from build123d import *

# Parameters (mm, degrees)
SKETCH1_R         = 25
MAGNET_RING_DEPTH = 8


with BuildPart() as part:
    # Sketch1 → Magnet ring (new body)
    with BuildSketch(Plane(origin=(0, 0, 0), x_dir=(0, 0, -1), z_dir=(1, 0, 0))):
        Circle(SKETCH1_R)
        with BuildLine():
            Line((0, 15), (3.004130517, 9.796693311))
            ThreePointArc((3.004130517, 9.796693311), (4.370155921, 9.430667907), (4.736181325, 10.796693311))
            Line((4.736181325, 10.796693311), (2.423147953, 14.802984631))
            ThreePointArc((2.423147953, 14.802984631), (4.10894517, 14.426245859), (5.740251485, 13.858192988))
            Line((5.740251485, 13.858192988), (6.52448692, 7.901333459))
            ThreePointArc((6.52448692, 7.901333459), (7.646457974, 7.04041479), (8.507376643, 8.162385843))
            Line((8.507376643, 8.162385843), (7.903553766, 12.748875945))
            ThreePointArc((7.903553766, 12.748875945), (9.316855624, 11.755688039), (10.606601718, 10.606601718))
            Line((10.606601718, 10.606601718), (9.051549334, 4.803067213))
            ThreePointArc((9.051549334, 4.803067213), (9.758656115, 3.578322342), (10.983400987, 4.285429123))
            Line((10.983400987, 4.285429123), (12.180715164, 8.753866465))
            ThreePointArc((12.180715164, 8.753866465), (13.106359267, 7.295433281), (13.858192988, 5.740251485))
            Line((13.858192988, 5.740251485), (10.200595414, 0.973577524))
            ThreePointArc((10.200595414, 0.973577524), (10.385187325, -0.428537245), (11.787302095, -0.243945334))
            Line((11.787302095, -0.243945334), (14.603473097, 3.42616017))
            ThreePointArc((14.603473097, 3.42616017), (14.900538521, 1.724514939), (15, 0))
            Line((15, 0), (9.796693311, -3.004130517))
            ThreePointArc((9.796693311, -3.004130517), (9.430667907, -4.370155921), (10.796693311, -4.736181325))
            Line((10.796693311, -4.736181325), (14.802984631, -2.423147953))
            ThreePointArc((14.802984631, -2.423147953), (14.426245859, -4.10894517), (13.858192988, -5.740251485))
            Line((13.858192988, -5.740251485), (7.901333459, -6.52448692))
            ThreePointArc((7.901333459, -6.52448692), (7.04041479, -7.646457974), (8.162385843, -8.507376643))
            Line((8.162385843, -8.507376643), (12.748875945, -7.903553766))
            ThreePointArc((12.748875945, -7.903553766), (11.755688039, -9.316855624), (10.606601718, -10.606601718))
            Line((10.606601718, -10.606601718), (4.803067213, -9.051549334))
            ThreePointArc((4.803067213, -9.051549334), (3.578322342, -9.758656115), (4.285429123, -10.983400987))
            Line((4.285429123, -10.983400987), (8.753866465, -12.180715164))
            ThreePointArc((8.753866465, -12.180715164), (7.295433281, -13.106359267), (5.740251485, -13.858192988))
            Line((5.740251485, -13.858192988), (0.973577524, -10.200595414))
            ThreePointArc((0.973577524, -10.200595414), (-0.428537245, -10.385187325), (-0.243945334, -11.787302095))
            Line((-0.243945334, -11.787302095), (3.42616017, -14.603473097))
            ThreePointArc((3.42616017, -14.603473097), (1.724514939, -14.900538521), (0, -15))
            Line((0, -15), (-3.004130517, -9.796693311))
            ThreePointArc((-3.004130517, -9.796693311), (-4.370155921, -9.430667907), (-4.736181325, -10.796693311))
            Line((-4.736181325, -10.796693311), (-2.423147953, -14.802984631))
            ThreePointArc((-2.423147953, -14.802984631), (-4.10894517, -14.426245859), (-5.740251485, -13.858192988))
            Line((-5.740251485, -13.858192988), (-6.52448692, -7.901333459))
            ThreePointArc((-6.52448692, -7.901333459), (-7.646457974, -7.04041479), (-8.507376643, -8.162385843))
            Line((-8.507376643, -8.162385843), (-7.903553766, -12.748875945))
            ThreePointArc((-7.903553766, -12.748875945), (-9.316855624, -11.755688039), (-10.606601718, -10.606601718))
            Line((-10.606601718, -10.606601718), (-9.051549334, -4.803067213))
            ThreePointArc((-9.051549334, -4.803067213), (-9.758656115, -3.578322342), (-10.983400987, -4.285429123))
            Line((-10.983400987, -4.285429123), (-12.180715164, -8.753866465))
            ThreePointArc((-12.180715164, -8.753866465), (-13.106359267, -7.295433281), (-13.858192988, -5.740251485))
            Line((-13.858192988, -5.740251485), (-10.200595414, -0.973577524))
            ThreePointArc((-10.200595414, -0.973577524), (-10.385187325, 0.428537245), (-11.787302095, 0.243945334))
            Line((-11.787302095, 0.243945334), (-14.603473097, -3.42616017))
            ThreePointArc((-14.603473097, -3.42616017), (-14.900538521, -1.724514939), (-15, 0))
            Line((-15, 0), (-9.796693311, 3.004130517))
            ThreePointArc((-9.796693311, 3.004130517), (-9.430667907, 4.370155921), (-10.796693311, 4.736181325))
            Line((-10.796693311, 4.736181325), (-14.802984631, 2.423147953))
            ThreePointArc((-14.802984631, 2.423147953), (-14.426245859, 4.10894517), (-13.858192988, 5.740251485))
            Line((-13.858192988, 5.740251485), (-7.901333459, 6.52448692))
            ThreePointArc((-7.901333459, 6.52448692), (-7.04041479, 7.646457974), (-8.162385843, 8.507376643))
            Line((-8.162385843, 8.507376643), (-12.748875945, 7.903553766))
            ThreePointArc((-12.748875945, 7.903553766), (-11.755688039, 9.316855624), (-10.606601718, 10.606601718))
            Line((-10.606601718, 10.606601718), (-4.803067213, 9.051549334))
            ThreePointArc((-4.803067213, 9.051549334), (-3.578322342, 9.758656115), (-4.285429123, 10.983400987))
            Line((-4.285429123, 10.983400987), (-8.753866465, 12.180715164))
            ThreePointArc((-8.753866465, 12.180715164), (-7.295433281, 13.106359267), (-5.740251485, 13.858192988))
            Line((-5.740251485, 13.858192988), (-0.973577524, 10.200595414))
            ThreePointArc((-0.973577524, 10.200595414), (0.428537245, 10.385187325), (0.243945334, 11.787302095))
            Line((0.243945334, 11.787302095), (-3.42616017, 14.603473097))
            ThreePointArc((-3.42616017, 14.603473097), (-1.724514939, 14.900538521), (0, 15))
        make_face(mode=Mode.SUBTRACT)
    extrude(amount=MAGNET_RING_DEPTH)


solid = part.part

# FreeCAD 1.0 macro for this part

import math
import FreeCAD as App
import Part
import Sketcher
Q = App.Units.Quantity

doc = App.newDocument("Part")
body = doc.addObject("PartDesign::Body", "Body")

# Sketch on YZ plane
sketch1 = body.newObject("Sketcher::SketchObject", "Sketch")
sketch1.AttachmentSupport = (doc.getObject("YZ_Plane"), [""])
sketch1.MapMode = "FlatFace"
sketch1.addGeometry([
    Part.Circle(App.Vector(0, 0, 0), App.Vector(0, 0, 1), 25),  # 0
    Part.ArcOfCircle(Part.Circle(App.Vector(0, 0, 0), App.Vector(0, 0, 1), 15), math.radians(0), math.radians(13.20352)),  # 1
    Part.LineSegment(App.Vector(15, 0, 0), App.Vector(9.796693, -3.004131, 0)),  # 2
    Part.ArcOfCircle(Part.Circle(App.Vector(10.296693, -3.870156, 0), App.Vector(0, 0, 1), 1), math.radians(120), math.radians(300)),  # 3
    Part.LineSegment(App.Vector(10.796693, -4.736181, 0), App.Vector(14.802985, -2.423148, 0)),  # 4
    Part.ArcOfCircle(Part.Circle(App.Vector(0, 0, 0), App.Vector(0, 0, 1), 15), math.radians(-22.5), math.radians(-9.29648)),  # 5
    Part.LineSegment(App.Vector(13.858193, -5.740251, 0), App.Vector(7.901333, -6.524487, 0)),  # 6
    Part.ArcOfCircle(Part.Circle(App.Vector(8.03186, -7.515932, 0), App.Vector(0, 0, 1), 1), math.radians(97.5), math.radians(277.5)),  # 7
    Part.LineSegment(App.Vector(8.162386, -8.507377, 0), App.Vector(12.748876, -7.903554, 0)),  # 8
    Part.ArcOfCircle(Part.Circle(App.Vector(0, 0, 0), App.Vector(0, 0, 1), 15), math.radians(-45), math.radians(-31.79648)),  # 9
    Part.LineSegment(App.Vector(10.606602, -10.606602, 0), App.Vector(4.803067, -9.051549, 0)),  # 10
    Part.ArcOfCircle(Part.Circle(App.Vector(4.544248, -10.017475, 0), App.Vector(0, 0, 1), 1), math.radians(75), math.radians(255)),  # 11
    Part.LineSegment(App.Vector(4.285429, -10.983401, 0), App.Vector(8.753866, -12.180715, 0)),  # 12
    Part.ArcOfCircle(Part.Circle(App.Vector(0, 0, 0), App.Vector(0, 0, 1), 15), math.radians(-67.5), math.radians(-54.29648)),  # 13
    Part.LineSegment(App.Vector(5.740251, -13.858193, 0), App.Vector(0.973578, -10.200595, 0)),  # 14
    Part.ArcOfCircle(Part.Circle(App.Vector(0.364816, -10.993949, 0), App.Vector(0, 0, 1), 1), math.radians(52.5), math.radians(232.5)),  # 15
    Part.LineSegment(App.Vector(-0.243945, -11.787302, 0), App.Vector(3.42616, -14.603473, 0)),  # 16
    Part.ArcOfCircle(Part.Circle(App.Vector(0, 0, 0), App.Vector(0, 0, 1), 15), math.radians(-90), math.radians(-76.79648)),  # 17
    Part.LineSegment(App.Vector(0, -15, 0), App.Vector(-3.004131, -9.796693, 0)),  # 18
    Part.ArcOfCircle(Part.Circle(App.Vector(-3.870156, -10.296693, 0), App.Vector(0, 0, 1), 1), math.radians(30), math.radians(210)),  # 19
    Part.LineSegment(App.Vector(-4.736181, -10.796693, 0), App.Vector(-2.423148, -14.802985, 0)),  # 20
    Part.ArcOfCircle(Part.Circle(App.Vector(0, 0, 0), App.Vector(0, 0, 1), 15), math.radians(-112.5), math.radians(-99.29648)),  # 21
    Part.LineSegment(App.Vector(-5.740251, -13.858193, 0), App.Vector(-6.524487, -7.901333, 0)),  # 22
    Part.ArcOfCircle(Part.Circle(App.Vector(-7.515932, -8.03186, 0), App.Vector(0, 0, 1), 1), math.radians(7.5), math.radians(187.5)),  # 23
    Part.LineSegment(App.Vector(-8.507377, -8.162386, 0), App.Vector(-7.903554, -12.748876, 0)),  # 24
    Part.ArcOfCircle(Part.Circle(App.Vector(0, 0, 0), App.Vector(0, 0, 1), 15), math.radians(-135), math.radians(-121.79648)),  # 25
    Part.LineSegment(App.Vector(-10.606602, -10.606602, 0), App.Vector(-9.051549, -4.803067, 0)),  # 26
    Part.ArcOfCircle(Part.Circle(App.Vector(-10.017475, -4.544248, 0), App.Vector(0, 0, 1), 1), math.radians(-15), math.radians(165)),  # 27
    Part.LineSegment(App.Vector(-10.983401, -4.285429, 0), App.Vector(-12.180715, -8.753866, 0)),  # 28
    Part.ArcOfCircle(Part.Circle(App.Vector(0, 0, 0), App.Vector(0, 0, 1), 15), math.radians(-157.5), math.radians(-144.29648)),  # 29
    Part.LineSegment(App.Vector(-13.858193, -5.740251, 0), App.Vector(-10.200595, -0.973578, 0)),  # 30
    Part.ArcOfCircle(Part.Circle(App.Vector(-10.993949, -0.364816, 0), App.Vector(0, 0, 1), 1), math.radians(-37.5), math.radians(142.5)),  # 31
    Part.LineSegment(App.Vector(-11.787302, 0.243945, 0), App.Vector(-14.603473, -3.42616, 0)),  # 32
    Part.ArcOfCircle(Part.Circle(App.Vector(0, 0, 0), App.Vector(0, 0, 1), 15), math.radians(-180), math.radians(-166.79648)),  # 33
    Part.LineSegment(App.Vector(-15, 0, 0), App.Vector(-9.796693, 3.004131, 0)),  # 34
    Part.ArcOfCircle(Part.Circle(App.Vector(-10.296693, 3.870156, 0), App.Vector(0, 0, 1), 1), math.radians(-60), math.radians(120)),  # 35
    Part.LineSegment(App.Vector(-10.796693, 4.736181, 0), App.Vector(-14.802985, 2.423148, 0)),  # 36
    Part.ArcOfCircle(Part.Circle(App.Vector(0, 0, 0), App.Vector(0, 0, 1), 15), math.radians(157.5), math.radians(170.70352)),  # 37
    Part.LineSegment(App.Vector(-13.858193, 5.740251, 0), App.Vector(-7.901333, 6.524487, 0)),  # 38
    Part.ArcOfCircle(Part.Circle(App.Vector(-8.03186, 7.515932, 0), App.Vector(0, 0, 1), 1), math.radians(-82.5), math.radians(97.5)),  # 39
    Part.LineSegment(App.Vector(-8.162386, 8.507377, 0), App.Vector(-12.748876, 7.903554, 0)),  # 40
    Part.ArcOfCircle(Part.Circle(App.Vector(0, 0, 0), App.Vector(0, 0, 1), 15), math.radians(135), math.radians(148.20352)),  # 41
    Part.LineSegment(App.Vector(-10.606602, 10.606602, 0), App.Vector(-4.803067, 9.051549, 0)),  # 42
    Part.ArcOfCircle(Part.Circle(App.Vector(-4.544248, 10.017475, 0), App.Vector(0, 0, 1), 1), math.radians(-105), math.radians(75)),  # 43
    Part.LineSegment(App.Vector(-4.285429, 10.983401, 0), App.Vector(-8.753866, 12.180715, 0)),  # 44
    Part.ArcOfCircle(Part.Circle(App.Vector(0, 0, 0), App.Vector(0, 0, 1), 15), math.radians(112.5), math.radians(125.70352)),  # 45
    Part.LineSegment(App.Vector(-5.740251, 13.858193, 0), App.Vector(-0.973578, 10.200595, 0)),  # 46
    Part.ArcOfCircle(Part.Circle(App.Vector(-0.364816, 10.993949, 0), App.Vector(0, 0, 1), 1), math.radians(-127.5), math.radians(52.5)),  # 47
    Part.LineSegment(App.Vector(0.243945, 11.787302, 0), App.Vector(-3.42616, 14.603473, 0)),  # 48
    Part.ArcOfCircle(Part.Circle(App.Vector(0, 0, 0), App.Vector(0, 0, 1), 15), math.radians(90), math.radians(103.20352)),  # 49
    Part.LineSegment(App.Vector(0, 15, 0), App.Vector(3.004131, 9.796693, 0)),  # 50
    Part.ArcOfCircle(Part.Circle(App.Vector(3.870156, 10.296693, 0), App.Vector(0, 0, 1), 1), math.radians(-150), math.radians(30)),  # 51
    Part.LineSegment(App.Vector(4.736181, 10.796693, 0), App.Vector(2.423148, 14.802985, 0)),  # 52
    Part.ArcOfCircle(Part.Circle(App.Vector(0, 0, 0), App.Vector(0, 0, 1), 15), math.radians(67.5), math.radians(80.70352)),  # 53
    Part.LineSegment(App.Vector(5.740251, 13.858193, 0), App.Vector(6.524487, 7.901333, 0)),  # 54
    Part.ArcOfCircle(Part.Circle(App.Vector(7.515932, 8.03186, 0), App.Vector(0, 0, 1), 1), math.radians(-172.5), math.radians(7.5)),  # 55
    Part.LineSegment(App.Vector(8.507377, 8.162386, 0), App.Vector(7.903554, 12.748876, 0)),  # 56
    Part.ArcOfCircle(Part.Circle(App.Vector(0, 0, 0), App.Vector(0, 0, 1), 15), math.radians(45), math.radians(58.20352)),  # 57
    Part.LineSegment(App.Vector(10.606602, 10.606602, 0), App.Vector(9.051549, 4.803067, 0)),  # 58
    Part.ArcOfCircle(Part.Circle(App.Vector(10.017475, 4.544248, 0), App.Vector(0, 0, 1), 1), math.radians(165), math.radians(345)),  # 59
    Part.LineSegment(App.Vector(10.983401, 4.285429, 0), App.Vector(12.180715, 8.753866, 0)),  # 60
    Part.ArcOfCircle(Part.Circle(App.Vector(0, 0, 0), App.Vector(0, 0, 1), 15), math.radians(22.5), math.radians(35.70352)),  # 61
    Part.LineSegment(App.Vector(13.858193, 5.740251, 0), App.Vector(10.200595, 0.973578, 0)),  # 62
    Part.ArcOfCircle(Part.Circle(App.Vector(10.993949, 0.364816, 0), App.Vector(0, 0, 1), 1), math.radians(142.5), math.radians(322.5)),  # 63
    Part.LineSegment(App.Vector(11.787302, -0.243945, 0), App.Vector(14.603473, 3.42616, 0)),  # 64
], False)
sketch1.addConstraint([
    Sketcher.Constraint("Coincident", 1, 1, 2, 1),
    Sketcher.Constraint("Tangent", 2, 2, 3, 1),
    Sketcher.Constraint("Tangent", 3, 2, 4, 1),
    Sketcher.Constraint("Coincident", 4, 2, 5, 2),
    Sketcher.Constraint("Coincident", 5, 1, 6, 1),
    Sketcher.Constraint("Tangent", 6, 2, 7, 1),
    Sketcher.Constraint("Tangent", 7, 2, 8, 1),
    Sketcher.Constraint("Coincident", 8, 2, 9, 2),
    Sketcher.Constraint("Coincident", 9, 1, 10, 1),
    Sketcher.Constraint("Tangent", 10, 2, 11, 1),
    Sketcher.Constraint("Tangent", 11, 2, 12, 1),
    Sketcher.Constraint("Coincident", 12, 2, 13, 2),
    Sketcher.Constraint("Coincident", 13, 1, 14, 1),
    Sketcher.Constraint("Tangent", 14, 2, 15, 1),
    Sketcher.Constraint("Tangent", 15, 2, 16, 1),
    Sketcher.Constraint("Coincident", 16, 2, 17, 2),
    Sketcher.Constraint("Coincident", 17, 1, 18, 1),
    Sketcher.Constraint("Tangent", 18, 2, 19, 1),
    Sketcher.Constraint("Tangent", 19, 2, 20, 1),
    Sketcher.Constraint("Coincident", 20, 2, 21, 2),
    Sketcher.Constraint("Coincident", 21, 1, 22, 1),
    Sketcher.Constraint("Tangent", 22, 2, 23, 1),
    Sketcher.Constraint("Tangent", 23, 2, 24, 1),
    Sketcher.Constraint("Coincident", 24, 2, 25, 2),
    Sketcher.Constraint("Coincident", 25, 1, 26, 1),
    Sketcher.Constraint("Tangent", 26, 2, 27, 1),
    Sketcher.Constraint("Tangent", 27, 2, 28, 1),
    Sketcher.Constraint("Coincident", 28, 2, 29, 2),
    Sketcher.Constraint("Coincident", 29, 1, 30, 1),
    Sketcher.Constraint("Tangent", 30, 2, 31, 1),
    Sketcher.Constraint("Tangent", 31, 2, 32, 1),
    Sketcher.Constraint("Coincident", 32, 2, 33, 2),
    Sketcher.Constraint("Coincident", 33, 1, 34, 1),
    Sketcher.Constraint("Tangent", 34, 2, 35, 1),
    Sketcher.Constraint("Tangent", 35, 2, 36, 1),
    Sketcher.Constraint("Coincident", 36, 2, 37, 2),
    Sketcher.Constraint("Coincident", 37, 1, 38, 1),
    Sketcher.Constraint("Tangent", 38, 2, 39, 1),
    Sketcher.Constraint("Tangent", 39, 2, 40, 1),
    Sketcher.Constraint("Coincident", 40, 2, 41, 2),
    Sketcher.Constraint("Coincident", 41, 1, 42, 1),
    Sketcher.Constraint("Tangent", 42, 2, 43, 1),
    Sketcher.Constraint("Tangent", 43, 2, 44, 1),
    Sketcher.Constraint("Coincident", 44, 2, 45, 2),
    Sketcher.Constraint("Coincident", 45, 1, 46, 1),
    Sketcher.Constraint("Tangent", 46, 2, 47, 1),
    Sketcher.Constraint("Tangent", 47, 2, 48, 1),
    Sketcher.Constraint("Coincident", 48, 2, 49, 2),
    Sketcher.Constraint("Coincident", 49, 1, 50, 1),
    Sketcher.Constraint("Tangent", 50, 2, 51, 1),
    Sketcher.Constraint("Tangent", 51, 2, 52, 1),
    Sketcher.Constraint("Coincident", 52, 2, 53, 2),
    Sketcher.Constraint("Coincident", 53, 1, 54, 1),
    Sketcher.Constraint("Tangent", 54, 2, 55, 1),
    Sketcher.Constraint("Tangent", 55, 2, 56, 1),
    Sketcher.Constraint("Coincident", 56, 2, 57, 2),
    Sketcher.Constraint("Coincident", 57, 1, 58, 1),
    Sketcher.Constraint("Tangent", 58, 2, 59, 1),
    Sketcher.Constraint("Tangent", 59, 2, 60, 1),
    Sketcher.Constraint("Coincident", 60, 2, 61, 2),
    Sketcher.Constraint("Coincident", 61, 1, 62, 1),
    Sketcher.Constraint("Tangent", 62, 2, 63, 1),
    Sketcher.Constraint("Tangent", 63, 2, 64, 1),
    Sketcher.Constraint("Coincident", 64, 2, 1, 2),
    Sketcher.Constraint("Coincident", 0, 3, -1, 1),
    Sketcher.Constraint("Coincident", 1, 3, -1, 1),
    Sketcher.Constraint("Coincident", 5, 3, -1, 1),
    Sketcher.Constraint("Coincident", 9, 3, -1, 1),
    Sketcher.Constraint("Coincident", 13, 3, -1, 1),
    Sketcher.Constraint("Coincident", 17, 3, -1, 1),
    Sketcher.Constraint("Coincident", 21, 3, -1, 1),
    Sketcher.Constraint("Coincident", 25, 3, -1, 1),
    Sketcher.Constraint("Coincident", 29, 3, -1, 1),
    Sketcher.Constraint("Coincident", 33, 3, -1, 1),
    Sketcher.Constraint("Coincident", 37, 3, -1, 1),
    Sketcher.Constraint("Coincident", 41, 3, -1, 1),
    Sketcher.Constraint("Coincident", 45, 3, -1, 1),
    Sketcher.Constraint("Coincident", 49, 3, -1, 1),
    Sketcher.Constraint("Coincident", 53, 3, -1, 1),
    Sketcher.Constraint("Coincident", 57, 3, -1, 1),
    Sketcher.Constraint("Coincident", 61, 3, -1, 1),
    Sketcher.Constraint("Equal", 1, 5),
    Sketcher.Constraint("Equal", 3, 7),
    Sketcher.Constraint("Equal", 5, 9),
    Sketcher.Constraint("Equal", 7, 11),
    Sketcher.Constraint("Equal", 9, 13),
    Sketcher.Constraint("Equal", 11, 15),
    Sketcher.Constraint("Equal", 13, 17),
    Sketcher.Constraint("Equal", 15, 19),
    Sketcher.Constraint("Equal", 17, 21),
    Sketcher.Constraint("Equal", 19, 23),
    Sketcher.Constraint("Equal", 21, 25),
    Sketcher.Constraint("Equal", 23, 27),
    Sketcher.Constraint("Equal", 25, 29),
    Sketcher.Constraint("Equal", 27, 31),
    Sketcher.Constraint("Equal", 29, 33),
    Sketcher.Constraint("Equal", 31, 35),
    Sketcher.Constraint("Equal", 33, 37),
    Sketcher.Constraint("Equal", 35, 39),
    Sketcher.Constraint("Equal", 37, 41),
    Sketcher.Constraint("Equal", 39, 43),
    Sketcher.Constraint("Equal", 41, 45),
    Sketcher.Constraint("Equal", 43, 47),
    Sketcher.Constraint("Equal", 45, 49),
    Sketcher.Constraint("Equal", 47, 51),
    Sketcher.Constraint("Equal", 49, 53),
    Sketcher.Constraint("Equal", 51, 55),
    Sketcher.Constraint("Equal", 53, 57),
    Sketcher.Constraint("Equal", 55, 59),
    Sketcher.Constraint("Equal", 57, 61),
    Sketcher.Constraint("Equal", 59, 63),
    Sketcher.Constraint("Symmetric", 3, 3, 35, 3, -1, 1),
    Sketcher.Constraint("Symmetric", 7, 3, 39, 3, -1, 1),
    Sketcher.Constraint("Symmetric", 11, 3, 43, 3, -1, 1),
    Sketcher.Constraint("Symmetric", 15, 3, 47, 3, -1, 1),
    Sketcher.Constraint("Symmetric", 19, 3, 51, 3, -1, 1),
    Sketcher.Constraint("Symmetric", 23, 3, 55, 3, -1, 1),
    Sketcher.Constraint("Symmetric", 27, 3, 59, 3, -1, 1),
    Sketcher.Constraint("Symmetric", 31, 3, 63, 3, -1, 1),
    Sketcher.Constraint("PointOnObject", 1, 1, -1),
    Sketcher.Constraint("PointOnObject", 17, 1, -2),
    Sketcher.Constraint("PointOnObject", 33, 1, -1),
    Sketcher.Constraint("PointOnObject", 49, 1, -2),
    Sketcher.Constraint("Parallel", 2, 4),
    Sketcher.Constraint("Parallel", 6, 8),
    Sketcher.Constraint("Parallel", 10, 12),
    Sketcher.Constraint("Parallel", 14, 16),
    Sketcher.Constraint("Perpendicular", 4, 18),
    Sketcher.Constraint("Parallel", 18, 20),
    Sketcher.Constraint("Perpendicular", 8, 22),
    Sketcher.Constraint("Parallel", 22, 24),
    Sketcher.Constraint("Perpendicular", 12, 26),
    Sketcher.Constraint("Parallel", 26, 28),
    Sketcher.Constraint("Perpendicular", 16, 30),
    Sketcher.Constraint("Parallel", 30, 32),
    Sketcher.Constraint("Parallel", 34, 36),
    Sketcher.Constraint("Perpendicular", 24, 38),
    Sketcher.Constraint("Parallel", 38, 40),
    Sketcher.Constraint("Perpendicular", 28, 42),
    Sketcher.Constraint("Parallel", 42, 44),
    Sketcher.Constraint("Perpendicular", 32, 46),
    Sketcher.Constraint("Parallel", 46, 48),
    Sketcher.Constraint("Parallel", 50, 52),
    Sketcher.Constraint("Perpendicular", 40, 54),
    Sketcher.Constraint("Parallel", 54, 56),
    Sketcher.Constraint("Perpendicular", 44, 58),
    Sketcher.Constraint("Parallel", 58, 60),
    Sketcher.Constraint("Perpendicular", 48, 62),
    Sketcher.Constraint("Parallel", 62, 64),
    Sketcher.Constraint("Horizontal", 13, 1, 21, 1),
    Sketcher.Constraint("Horizontal", 9, 1, 25, 1),
    Sketcher.Constraint("Horizontal", 5, 1, 29, 1),
    Sketcher.Constraint("Equal", 2, 6),
    Sketcher.Constraint("Equal", 4, 8),
    Sketcher.Constraint("Equal", 6, 10),
    Sketcher.Constraint("Equal", 8, 12),
    Sketcher.Constraint("Equal", 10, 14),
    Sketcher.Constraint("Equal", 12, 16),
    Sketcher.Constraint("Equal", 14, 18),
    Sketcher.Constraint("Equal", 18, 22),
    Sketcher.Constraint("Equal", 20, 24),
    Sketcher.Constraint("Equal", 22, 26),
    Sketcher.Constraint("Equal", 24, 28),
    Sketcher.Constraint("Equal", 26, 30),
    Sketcher.Constraint("Diameter", 0, 50.0),
    Sketcher.Constraint("Radius", 1, 15.0),
    Sketcher.Constraint("Radius", 3, 1.0),
    Sketcher.Constraint("Angle", 2, Q("-150 deg")),
    Sketcher.Constraint("Angle", 6, Q("-172.5 deg")),
    Sketcher.Constraint("DistanceY", 11, 2, -1, 1, 10.983401),
])
pad1 = body.newObject("PartDesign::Pad", "Pad")
pad1.Profile = sketch1
pad1.Length = 8

doc.recompute()
